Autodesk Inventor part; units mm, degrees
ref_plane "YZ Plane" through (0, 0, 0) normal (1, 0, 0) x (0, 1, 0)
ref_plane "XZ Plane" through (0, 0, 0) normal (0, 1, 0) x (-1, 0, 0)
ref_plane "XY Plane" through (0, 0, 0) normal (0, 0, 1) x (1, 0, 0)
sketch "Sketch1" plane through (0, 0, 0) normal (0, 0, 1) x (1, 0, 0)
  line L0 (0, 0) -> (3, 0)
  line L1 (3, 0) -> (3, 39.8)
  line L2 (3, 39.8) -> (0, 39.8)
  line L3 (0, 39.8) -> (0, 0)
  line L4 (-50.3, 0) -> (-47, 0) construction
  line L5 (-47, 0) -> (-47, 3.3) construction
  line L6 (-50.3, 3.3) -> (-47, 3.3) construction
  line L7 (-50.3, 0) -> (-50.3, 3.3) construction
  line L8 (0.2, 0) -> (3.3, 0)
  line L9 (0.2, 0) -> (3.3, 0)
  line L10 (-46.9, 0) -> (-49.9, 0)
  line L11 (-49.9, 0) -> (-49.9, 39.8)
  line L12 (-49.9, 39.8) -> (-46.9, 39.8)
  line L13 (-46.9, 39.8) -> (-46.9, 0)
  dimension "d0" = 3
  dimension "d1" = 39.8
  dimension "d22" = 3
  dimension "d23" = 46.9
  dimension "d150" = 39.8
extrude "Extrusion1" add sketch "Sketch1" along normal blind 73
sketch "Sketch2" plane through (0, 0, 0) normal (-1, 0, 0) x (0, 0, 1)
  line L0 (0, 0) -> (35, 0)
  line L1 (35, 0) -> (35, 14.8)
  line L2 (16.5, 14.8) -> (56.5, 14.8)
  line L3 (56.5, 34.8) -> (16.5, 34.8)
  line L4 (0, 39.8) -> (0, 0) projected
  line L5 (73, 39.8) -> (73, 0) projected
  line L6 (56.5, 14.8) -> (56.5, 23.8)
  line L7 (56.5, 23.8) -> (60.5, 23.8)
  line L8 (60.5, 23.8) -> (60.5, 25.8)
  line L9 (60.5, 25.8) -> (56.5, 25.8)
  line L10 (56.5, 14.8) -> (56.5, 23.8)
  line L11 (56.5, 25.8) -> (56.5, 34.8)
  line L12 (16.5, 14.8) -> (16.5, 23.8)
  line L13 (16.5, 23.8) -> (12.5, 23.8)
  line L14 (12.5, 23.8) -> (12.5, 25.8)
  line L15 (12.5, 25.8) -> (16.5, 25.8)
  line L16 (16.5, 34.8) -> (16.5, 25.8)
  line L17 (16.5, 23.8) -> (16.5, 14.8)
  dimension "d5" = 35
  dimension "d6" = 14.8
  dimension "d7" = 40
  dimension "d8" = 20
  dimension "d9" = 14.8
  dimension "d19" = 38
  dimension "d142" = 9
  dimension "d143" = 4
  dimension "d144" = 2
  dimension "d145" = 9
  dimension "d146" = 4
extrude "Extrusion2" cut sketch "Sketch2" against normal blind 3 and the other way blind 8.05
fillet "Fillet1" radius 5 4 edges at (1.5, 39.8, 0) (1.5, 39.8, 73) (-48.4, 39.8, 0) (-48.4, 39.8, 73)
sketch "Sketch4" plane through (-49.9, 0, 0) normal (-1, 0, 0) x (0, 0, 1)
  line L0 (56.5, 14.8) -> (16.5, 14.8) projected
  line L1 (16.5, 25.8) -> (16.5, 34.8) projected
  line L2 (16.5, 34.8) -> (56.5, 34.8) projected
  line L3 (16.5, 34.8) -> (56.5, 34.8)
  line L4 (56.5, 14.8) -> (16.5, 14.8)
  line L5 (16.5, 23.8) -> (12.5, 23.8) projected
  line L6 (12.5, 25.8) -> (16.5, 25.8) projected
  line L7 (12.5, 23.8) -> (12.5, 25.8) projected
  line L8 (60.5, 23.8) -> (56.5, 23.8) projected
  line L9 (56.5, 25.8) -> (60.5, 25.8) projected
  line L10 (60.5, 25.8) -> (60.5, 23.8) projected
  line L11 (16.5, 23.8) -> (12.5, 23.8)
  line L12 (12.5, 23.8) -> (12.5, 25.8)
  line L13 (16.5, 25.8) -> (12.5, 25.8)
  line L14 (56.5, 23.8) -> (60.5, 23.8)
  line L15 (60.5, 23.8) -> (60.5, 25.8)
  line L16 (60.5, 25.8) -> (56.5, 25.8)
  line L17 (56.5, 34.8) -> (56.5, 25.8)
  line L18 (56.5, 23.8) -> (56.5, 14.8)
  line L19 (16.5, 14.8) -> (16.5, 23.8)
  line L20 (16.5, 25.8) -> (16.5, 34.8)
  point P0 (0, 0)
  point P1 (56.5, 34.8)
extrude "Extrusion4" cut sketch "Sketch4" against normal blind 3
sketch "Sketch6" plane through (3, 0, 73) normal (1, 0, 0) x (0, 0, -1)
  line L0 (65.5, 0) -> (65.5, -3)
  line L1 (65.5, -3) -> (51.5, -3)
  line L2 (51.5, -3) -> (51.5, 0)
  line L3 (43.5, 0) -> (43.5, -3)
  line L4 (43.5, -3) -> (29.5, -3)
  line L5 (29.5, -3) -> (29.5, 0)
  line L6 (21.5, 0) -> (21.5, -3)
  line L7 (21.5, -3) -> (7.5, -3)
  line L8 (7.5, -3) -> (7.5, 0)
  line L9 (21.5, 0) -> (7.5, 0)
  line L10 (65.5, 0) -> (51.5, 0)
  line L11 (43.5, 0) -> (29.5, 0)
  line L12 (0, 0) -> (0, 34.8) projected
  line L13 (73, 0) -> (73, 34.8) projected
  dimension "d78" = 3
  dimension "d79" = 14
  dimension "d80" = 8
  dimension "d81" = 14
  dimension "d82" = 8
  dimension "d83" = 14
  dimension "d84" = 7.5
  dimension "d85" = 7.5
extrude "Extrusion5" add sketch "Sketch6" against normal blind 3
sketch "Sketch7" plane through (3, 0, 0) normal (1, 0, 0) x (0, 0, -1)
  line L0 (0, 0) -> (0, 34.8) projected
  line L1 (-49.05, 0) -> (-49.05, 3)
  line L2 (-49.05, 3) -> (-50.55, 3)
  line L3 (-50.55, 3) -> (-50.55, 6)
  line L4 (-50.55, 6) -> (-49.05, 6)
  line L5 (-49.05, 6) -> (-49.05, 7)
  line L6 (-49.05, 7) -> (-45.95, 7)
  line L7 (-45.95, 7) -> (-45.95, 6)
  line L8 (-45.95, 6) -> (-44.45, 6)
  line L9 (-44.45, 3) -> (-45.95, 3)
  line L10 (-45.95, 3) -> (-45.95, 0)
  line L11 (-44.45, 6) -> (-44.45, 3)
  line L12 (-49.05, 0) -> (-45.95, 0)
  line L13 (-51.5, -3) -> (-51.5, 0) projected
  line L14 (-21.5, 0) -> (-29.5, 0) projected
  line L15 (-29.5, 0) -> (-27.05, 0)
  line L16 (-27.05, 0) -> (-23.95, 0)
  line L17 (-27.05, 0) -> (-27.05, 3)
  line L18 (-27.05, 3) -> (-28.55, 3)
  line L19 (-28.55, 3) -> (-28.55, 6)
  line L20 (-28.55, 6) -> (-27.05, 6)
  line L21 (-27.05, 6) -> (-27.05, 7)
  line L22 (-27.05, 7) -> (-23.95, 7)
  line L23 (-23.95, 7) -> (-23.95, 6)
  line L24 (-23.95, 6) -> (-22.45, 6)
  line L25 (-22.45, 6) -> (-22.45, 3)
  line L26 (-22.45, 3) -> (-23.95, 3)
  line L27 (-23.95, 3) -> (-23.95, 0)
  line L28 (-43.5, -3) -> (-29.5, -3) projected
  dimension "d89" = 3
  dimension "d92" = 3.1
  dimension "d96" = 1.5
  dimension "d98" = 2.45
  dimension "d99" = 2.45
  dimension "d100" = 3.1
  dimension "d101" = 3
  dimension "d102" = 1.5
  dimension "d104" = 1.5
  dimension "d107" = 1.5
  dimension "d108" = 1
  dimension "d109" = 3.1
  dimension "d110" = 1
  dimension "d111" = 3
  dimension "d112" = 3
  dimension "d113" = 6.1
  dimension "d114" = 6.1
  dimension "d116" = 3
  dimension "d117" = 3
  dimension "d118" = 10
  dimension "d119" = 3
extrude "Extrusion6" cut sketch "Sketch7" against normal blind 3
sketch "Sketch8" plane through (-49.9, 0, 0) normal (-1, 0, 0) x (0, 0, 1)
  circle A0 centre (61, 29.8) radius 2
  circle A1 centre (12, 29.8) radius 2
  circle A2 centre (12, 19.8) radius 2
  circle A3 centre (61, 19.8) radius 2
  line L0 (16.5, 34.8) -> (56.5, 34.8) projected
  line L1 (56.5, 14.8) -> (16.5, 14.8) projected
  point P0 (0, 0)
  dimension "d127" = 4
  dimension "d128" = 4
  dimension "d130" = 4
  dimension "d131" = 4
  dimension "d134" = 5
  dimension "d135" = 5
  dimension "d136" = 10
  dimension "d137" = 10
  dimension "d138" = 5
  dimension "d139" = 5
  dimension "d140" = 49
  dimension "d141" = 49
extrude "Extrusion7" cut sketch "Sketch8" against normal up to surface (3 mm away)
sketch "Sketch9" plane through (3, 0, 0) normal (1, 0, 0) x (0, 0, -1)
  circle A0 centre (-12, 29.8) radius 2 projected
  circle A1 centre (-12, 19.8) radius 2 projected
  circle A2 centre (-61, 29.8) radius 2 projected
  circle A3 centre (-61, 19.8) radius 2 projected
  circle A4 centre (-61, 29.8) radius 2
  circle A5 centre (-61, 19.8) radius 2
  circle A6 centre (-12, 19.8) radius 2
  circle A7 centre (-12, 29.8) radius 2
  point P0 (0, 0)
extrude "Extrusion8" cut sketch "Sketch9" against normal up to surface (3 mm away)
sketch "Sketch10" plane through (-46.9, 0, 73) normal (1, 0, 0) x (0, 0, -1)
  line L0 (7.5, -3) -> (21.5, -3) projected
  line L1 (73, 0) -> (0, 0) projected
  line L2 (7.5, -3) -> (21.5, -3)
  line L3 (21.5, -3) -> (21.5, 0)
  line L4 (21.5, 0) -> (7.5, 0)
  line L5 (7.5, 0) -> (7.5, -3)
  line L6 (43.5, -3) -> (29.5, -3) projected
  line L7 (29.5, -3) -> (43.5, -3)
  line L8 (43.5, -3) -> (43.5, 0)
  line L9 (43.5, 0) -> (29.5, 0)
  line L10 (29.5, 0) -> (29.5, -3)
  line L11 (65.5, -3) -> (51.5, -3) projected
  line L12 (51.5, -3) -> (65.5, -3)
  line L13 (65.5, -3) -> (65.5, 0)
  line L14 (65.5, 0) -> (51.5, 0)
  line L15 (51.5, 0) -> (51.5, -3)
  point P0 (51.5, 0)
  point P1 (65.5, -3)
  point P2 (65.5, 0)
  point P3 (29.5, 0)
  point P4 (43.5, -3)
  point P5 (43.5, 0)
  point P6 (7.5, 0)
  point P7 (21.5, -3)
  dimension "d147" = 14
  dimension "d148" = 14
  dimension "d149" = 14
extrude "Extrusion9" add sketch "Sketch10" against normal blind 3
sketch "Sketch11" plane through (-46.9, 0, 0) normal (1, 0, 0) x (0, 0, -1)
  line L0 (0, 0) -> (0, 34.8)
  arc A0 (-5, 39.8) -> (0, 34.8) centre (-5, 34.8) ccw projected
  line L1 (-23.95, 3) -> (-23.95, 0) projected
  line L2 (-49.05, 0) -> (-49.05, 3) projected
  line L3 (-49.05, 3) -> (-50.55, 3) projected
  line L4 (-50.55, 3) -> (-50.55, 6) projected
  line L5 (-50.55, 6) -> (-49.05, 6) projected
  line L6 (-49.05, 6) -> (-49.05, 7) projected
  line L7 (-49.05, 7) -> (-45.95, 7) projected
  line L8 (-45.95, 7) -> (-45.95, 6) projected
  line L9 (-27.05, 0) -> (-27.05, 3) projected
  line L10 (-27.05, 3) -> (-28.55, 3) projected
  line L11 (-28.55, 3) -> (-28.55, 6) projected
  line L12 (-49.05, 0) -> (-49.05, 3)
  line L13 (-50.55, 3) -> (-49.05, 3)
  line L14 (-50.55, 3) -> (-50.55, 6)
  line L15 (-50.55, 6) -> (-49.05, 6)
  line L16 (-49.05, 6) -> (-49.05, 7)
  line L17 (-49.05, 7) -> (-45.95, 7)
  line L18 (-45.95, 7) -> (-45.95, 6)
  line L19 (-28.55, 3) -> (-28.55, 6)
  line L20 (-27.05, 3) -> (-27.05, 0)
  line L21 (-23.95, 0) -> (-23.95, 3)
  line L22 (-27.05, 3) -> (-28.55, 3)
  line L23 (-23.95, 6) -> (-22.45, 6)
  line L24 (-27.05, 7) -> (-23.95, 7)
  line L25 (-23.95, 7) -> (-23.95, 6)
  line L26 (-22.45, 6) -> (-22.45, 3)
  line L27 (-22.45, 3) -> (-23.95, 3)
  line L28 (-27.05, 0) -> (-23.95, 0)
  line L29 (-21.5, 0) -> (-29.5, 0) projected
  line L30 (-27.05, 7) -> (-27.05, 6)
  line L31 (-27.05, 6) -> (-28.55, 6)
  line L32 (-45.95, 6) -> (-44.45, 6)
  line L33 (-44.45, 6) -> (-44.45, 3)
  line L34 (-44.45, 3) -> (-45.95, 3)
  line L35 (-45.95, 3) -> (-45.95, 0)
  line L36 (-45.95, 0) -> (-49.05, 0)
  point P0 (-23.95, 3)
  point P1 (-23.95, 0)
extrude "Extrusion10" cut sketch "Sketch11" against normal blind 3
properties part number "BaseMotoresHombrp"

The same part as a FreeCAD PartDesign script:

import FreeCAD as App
import Part
import Sketcher
Q = App.Units.Quantity


def edges_at(feature, points):
    """Names of the edges that pass closest to the given points."""
    edges = feature.Shape.Edges
    near = lambda p: min(range(len(edges)), key=lambda i: edges[i].distToShape(Part.Vertex(*p))[0])
    return sorted({f"Edge{near(p) + 1}" for p in points})

doc = App.newDocument("Part")
body = doc.addObject("PartDesign::Body", "Body")
body.AllowCompound = True

# Sketch on XY plane
sketch1 = body.newObject("Sketcher::SketchObject", "Sketch")
sketch1.AttachmentSupport = (doc.getObject("XY_Plane"), [""])
sketch1.MapMode = "FlatFace"
sketch1.addGeometry([
    Part.LineSegment(App.Vector(0, 39.8, 0), App.Vector(0, 0, 0)),  # 0
    Part.LineSegment(App.Vector(0, 0, 0), App.Vector(3, 0, 0)),  # 1
    Part.LineSegment(App.Vector(3, 0, 0), App.Vector(3, 39.8, 0)),  # 2
    Part.LineSegment(App.Vector(3, 39.8, 0), App.Vector(0, 39.8, 0)),  # 3
    Part.LineSegment(App.Vector(-49.9, 0, 0), App.Vector(-46.9, 0, 0)),  # 4
    Part.LineSegment(App.Vector(-46.9, 0, 0), App.Vector(-46.9, 39.8, 0)),  # 5
    Part.LineSegment(App.Vector(-46.9, 39.8, 0), App.Vector(-49.9, 39.8, 0)),  # 6
    Part.LineSegment(App.Vector(-49.9, 39.8, 0), App.Vector(-49.9, 0, 0)),  # 7
], False)
sketch1.addConstraint([
    Sketcher.Constraint("Coincident", 0, 2, 1, 1),
    Sketcher.Constraint("Coincident", 1, 2, 2, 1),
    Sketcher.Constraint("Coincident", 2, 2, 3, 1),
    Sketcher.Constraint("Coincident", 3, 2, 0, 1),
    Sketcher.Constraint("Coincident", 4, 2, 5, 1),
    Sketcher.Constraint("Coincident", 5, 2, 6, 1),
    Sketcher.Constraint("Coincident", 6, 2, 7, 1),
    Sketcher.Constraint("Coincident", 7, 2, 4, 1),
    Sketcher.Constraint("Vertical", 0),
    Sketcher.Constraint("Horizontal", 1),
    Sketcher.Constraint("Vertical", 2),
    Sketcher.Constraint("Horizontal", 3),
    Sketcher.Constraint("Horizontal", 4),
    Sketcher.Constraint("Vertical", 5),
    Sketcher.Constraint("Horizontal", 6),
    Sketcher.Constraint("Vertical", 7),
    Sketcher.Constraint("Coincident", 0, 2, -1, 1),
    Sketcher.Constraint("PointOnObject", 4, 2, -1),
    Sketcher.Constraint("Horizontal", 3, 2, 5, 2),
    Sketcher.Constraint("Equal", 3, 4),
    Sketcher.Constraint("DistanceX", 1, 1, 1, 2, Q("3 mm")),
    Sketcher.Constraint("DistanceY", 0, 2, 0, 1, Q("39.8 mm")),
    Sketcher.Constraint("DistanceX", 4, 2, -1, 1, Q("46.9 mm")),
])
pad1 = body.newObject("PartDesign::Pad", "Pad")
pad1.Profile = sketch1
pad1.Length = 73

# Sketch on YZ plane
sketch2 = body.newObject("Sketcher::SketchObject", "Sketch001")
sketch2.AttachmentSupport = (doc.getObject("YZ_Plane"), [""])
sketch2.MapMode = "FlatFace"
sketch2.addGeometry([
    Part.LineSegment(App.Vector(23.8, 16.5, 0), App.Vector(14.8, 16.5, 0)),  # 0
    Part.LineSegment(App.Vector(14.8, 16.5, 0), App.Vector(14.8, 56.5, 0)),  # 1
    Part.LineSegment(App.Vector(14.8, 56.5, 0), App.Vector(23.8, 56.5, 0)),  # 2
    Part.LineSegment(App.Vector(23.8, 56.5, 0), App.Vector(23.8, 60.5, 0)),  # 3
    Part.LineSegment(App.Vector(23.8, 60.5, 0), App.Vector(25.8, 60.5, 0)),  # 4
    Part.LineSegment(App.Vector(25.8, 60.5, 0), App.Vector(25.8, 56.5, 0)),  # 5
    Part.LineSegment(App.Vector(25.8, 56.5, 0), App.Vector(34.8, 56.5, 0)),  # 6
    Part.LineSegment(App.Vector(34.8, 56.5, 0), App.Vector(34.8, 16.5, 0)),  # 7
    Part.LineSegment(App.Vector(34.8, 16.5, 0), App.Vector(25.8, 16.5, 0)),  # 8
    Part.LineSegment(App.Vector(25.8, 16.5, 0), App.Vector(25.8, 12.5, 0)),  # 9
    Part.LineSegment(App.Vector(25.8, 12.5, 0), App.Vector(23.8, 12.5, 0)),  # 10
    Part.LineSegment(App.Vector(23.8, 12.5, 0), App.Vector(23.8, 16.5, 0)),  # 11
], False)
sketch2.addConstraint([
    Sketcher.Constraint("Coincident", 0, 2, 1, 1),
    Sketcher.Constraint("Coincident", 1, 2, 2, 1),
    Sketcher.Constraint("Coincident", 2, 2, 3, 1),
    Sketcher.Constraint("Coincident", 3, 2, 4, 1),
    Sketcher.Constraint("Coincident", 4, 2, 5, 1),
    Sketcher.Constraint("Coincident", 5, 2, 6, 1),
    Sketcher.Constraint("Coincident", 6, 2, 7, 1),
    Sketcher.Constraint("Coincident", 7, 2, 8, 1),
    Sketcher.Constraint("Coincident", 8, 2, 9, 1),
    Sketcher.Constraint("Coincident", 9, 2, 10, 1),
    Sketcher.Constraint("Coincident", 10, 2, 11, 1),
    Sketcher.Constraint("Coincident", 11, 2, 0, 1),
    Sketcher.Constraint("Horizontal", 0),
    Sketcher.Constraint("Vertical", 1),
    Sketcher.Constraint("Horizontal", 2),
    Sketcher.Constraint("Vertical", 3),
    Sketcher.Constraint("Horizontal", 4),
    Sketcher.Constraint("Vertical", 5),
    Sketcher.Constraint("Horizontal", 6),
    Sketcher.Constraint("Vertical", 7),
    Sketcher.Constraint("Horizontal", 8),
    Sketcher.Constraint("Vertical", 9),
    Sketcher.Constraint("Horizontal", 10),
    Sketcher.Constraint("Vertical", 11),
    Sketcher.Constraint("Horizontal", 2, 2, 5, 2),
    Sketcher.Constraint("Horizontal", 0, 2, 7, 2),
    Sketcher.Constraint("Vertical", 5, 2, 8, 2),
    Sketcher.Constraint("Vertical", 3, 2, 10, 2),
    Sketcher.Constraint("Equal", 2, 6),
    Sketcher.Constraint("Equal", 5, 9),
    Sketcher.Constraint("DistanceX", 0, 2, 0, 1, Q("9 mm")),
    Sketcher.Constraint("DistanceX", 4, 1, 4, 2, Q("2 mm")),
    Sketcher.Constraint("DistanceY", 1, 1, 1, 2, Q("40 mm")),
    Sketcher.Constraint("DistanceY", 3, 1, 3, 2, Q("4 mm")),
    Sketcher.Constraint("DistanceX", -1, 1, 0, 2, Q("14.8 mm")),
    Sketcher.Constraint("DistanceY", -1, 1, 0, 2, Q("16.5 mm")),
])
pocket1 = body.newObject("PartDesign::Pocket", "Pocket")
pocket1.Profile = sketch2
pocket1.Type = "TwoLengths"
pocket1.Length = 3
pocket1.Length2 = 8.05
pocket1.Reversed = True
doc.recompute()

fillet = body.newObject("PartDesign::Fillet", "Fillet")
fillet.Base = (pocket1, edges_at(pocket1, [
    (1.5, 39.8, 0),
    (1.5, 39.8, 73),
    (-48.4, 39.8, 0),
    (-48.4, 39.8, 73),
]))
fillet.Radius = 5

# Sketch on YZ plane
sketch3 = body.newObject("Sketcher::SketchObject", "Sketch002")
sketch3.AttachmentSupport = (doc.getObject("YZ_Plane"), [""])
sketch3.MapMode = "FlatFace"
sketch3.AttachmentOffset = App.Placement(App.Vector(0, 0, -49.9), App.Rotation())
sketch3.addGeometry([
    Part.LineSegment(App.Vector(14.8, 16.5, 0), App.Vector(14.8, 56.5, 0)),  # 0
    Part.LineSegment(App.Vector(14.8, 56.5, 0), App.Vector(23.8, 56.5, 0)),  # 1
    Part.LineSegment(App.Vector(23.8, 56.5, 0), App.Vector(23.8, 60.5, 0)),  # 2
    Part.LineSegment(App.Vector(23.8, 60.5, 0), App.Vector(25.8, 60.5, 0)),  # 3
    Part.LineSegment(App.Vector(25.8, 60.5, 0), App.Vector(25.8, 56.5, 0)),  # 4
    Part.LineSegment(App.Vector(25.8, 56.5, 0), App.Vector(34.8, 56.5, 0)),  # 5
    Part.LineSegment(App.Vector(34.8, 56.5, 0), App.Vector(34.8, 16.5, 0)),  # 6
    Part.LineSegment(App.Vector(34.8, 16.5, 0), App.Vector(25.8, 16.5, 0)),  # 7
    Part.LineSegment(App.Vector(25.8, 16.5, 0), App.Vector(25.8, 12.5, 0)),  # 8
    Part.LineSegment(App.Vector(25.8, 12.5, 0), App.Vector(23.8, 12.5, 0)),  # 9
    Part.LineSegment(App.Vector(23.8, 12.5, 0), App.Vector(23.8, 16.5, 0)),  # 10
    Part.LineSegment(App.Vector(23.8, 16.5, 0), App.Vector(14.8, 16.5, 0)),  # 11
], False)
sketch3.addConstraint([
    Sketcher.Constraint("Coincident", 0, 2, 1, 1),
    Sketcher.Constraint("Coincident", 1, 2, 2, 1),
    Sketcher.Constraint("Coincident", 2, 2, 3, 1),
    Sketcher.Constraint("Coincident", 3, 2, 4, 1),
    Sketcher.Constraint("Coincident", 4, 2, 5, 1),
    Sketcher.Constraint("Coincident", 5, 2, 6, 1),
    Sketcher.Constraint("Coincident", 6, 2, 7, 1),
    Sketcher.Constraint("Coincident", 7, 2, 8, 1),
    Sketcher.Constraint("Coincident", 8, 2, 9, 1),
    Sketcher.Constraint("Coincident", 9, 2, 10, 1),
    Sketcher.Constraint("Coincident", 10, 2, 11, 1),
    Sketcher.Constraint("Coincident", 11, 2, 0, 1),
    Sketcher.Constraint("Vertical", 0),
    Sketcher.Constraint("Horizontal", 1),
    Sketcher.Constraint("Vertical", 2),
    Sketcher.Constraint("Horizontal", 3),
    Sketcher.Constraint("Vertical", 4),
    Sketcher.Constraint("Horizontal", 5),
    Sketcher.Constraint("Vertical", 6),
    Sketcher.Constraint("Horizontal", 7),
    Sketcher.Constraint("Vertical", 8),
    Sketcher.Constraint("Horizontal", 9),
    Sketcher.Constraint("Vertical", 10),
    Sketcher.Constraint("Horizontal", 11),
    Sketcher.Constraint("Horizontal", 1, 2, 4, 2),
    Sketcher.Constraint("Horizontal", 7, 2, 10, 2),
    Sketcher.Constraint("Vertical", 4, 2, 7, 2),
    Sketcher.Constraint("Vertical", 2, 2, 9, 2),
    Sketcher.Constraint("Equal", 1, 5),
    Sketcher.Constraint("Equal", 4, 8),
    Sketcher.Constraint("DistanceX", 1, 1, 1, 2, Q("9 mm")),
    Sketcher.Constraint("DistanceX", 3, 1, 3, 2, Q("2 mm")),
    Sketcher.Constraint("DistanceY", 0, 1, 0, 2, Q("40 mm")),
    Sketcher.Constraint("DistanceY", 2, 1, 2, 2, Q("4 mm")),
    Sketcher.Constraint("DistanceX", -1, 1, 0, 2, Q("14.8 mm")),
    Sketcher.Constraint("DistanceY", -1, 1, 0, 2, Q("56.5 mm")),
])
pocket2 = body.newObject("PartDesign::Pocket", "Pocket001")
pocket2.Profile = sketch3
pocket2.Length = 3
pocket2.Reversed = True

# Sketch on YZ plane
sketch4 = body.newObject("Sketcher::SketchObject", "Sketch003")
sketch4.AttachmentSupport = (doc.getObject("YZ_Plane"), [""])
sketch4.MapMode = "FlatFace"
sketch4.AttachmentOffset = App.Placement(App.Vector(0, 0, 3), App.Rotation())
sketch4.addGeometry([
    Part.LineSegment(App.Vector(-3, 7.5, 0), App.Vector(0, 7.5, 0)),  # 0
    Part.LineSegment(App.Vector(0, 7.5, 0), App.Vector(0, 21.5, 0)),  # 1
    Part.LineSegment(App.Vector(0, 21.5, 0), App.Vector(-3, 21.5, 0)),  # 2
    Part.LineSegment(App.Vector(-3, 21.5, 0), App.Vector(-3, 7.5, 0)),  # 3
    Part.LineSegment(App.Vector(-3, 29.5, 0), App.Vector(0, 29.5, 0)),  # 4
    Part.LineSegment(App.Vector(0, 29.5, 0), App.Vector(0, 43.5, 0)),  # 5
    Part.LineSegment(App.Vector(0, 43.5, 0), App.Vector(-3, 43.5, 0)),  # 6
    Part.LineSegment(App.Vector(-3, 43.5, 0), App.Vector(-3, 29.5, 0)),  # 7
    Part.LineSegment(App.Vector(-3, 51.5, 0), App.Vector(0, 51.5, 0)),  # 8
    Part.LineSegment(App.Vector(0, 51.5, 0), App.Vector(0, 65.5, 0)),  # 9
    Part.LineSegment(App.Vector(0, 65.5, 0), App.Vector(-3, 65.5, 0)),  # 10
    Part.LineSegment(App.Vector(-3, 65.5, 0), App.Vector(-3, 51.5, 0)),  # 11
], False)
sketch4.addConstraint([
    Sketcher.Constraint("Coincident", 0, 2, 1, 1),
    Sketcher.Constraint("Coincident", 1, 2, 2, 1),
    Sketcher.Constraint("Coincident", 2, 2, 3, 1),
    Sketcher.Constraint("Coincident", 3, 2, 0, 1),
    Sketcher.Constraint("Coincident", 4, 2, 5, 1),
    Sketcher.Constraint("Coincident", 5, 2, 6, 1),
    Sketcher.Constraint("Coincident", 6, 2, 7, 1),
    Sketcher.Constraint("Coincident", 7, 2, 4, 1),
    Sketcher.Constraint("Coincident", 8, 2, 9, 1),
    Sketcher.Constraint("Coincident", 9, 2, 10, 1),
    Sketcher.Constraint("Coincident", 10, 2, 11, 1),
    Sketcher.Constraint("Coincident", 11, 2, 8, 1),
    Sketcher.Constraint("Horizontal", 0),
    Sketcher.Constraint("Vertical", 1),
    Sketcher.Constraint("Horizontal", 2),
    Sketcher.Constraint("Vertical", 3),
    Sketcher.Constraint("Horizontal", 4),
    Sketcher.Constraint("Vertical", 5),
    Sketcher.Constraint("Horizontal", 6),
    Sketcher.Constraint("Vertical", 7),
    Sketcher.Constraint("Horizontal", 8),
    Sketcher.Constraint("Vertical", 9),
    Sketcher.Constraint("Horizontal", 10),
    Sketcher.Constraint("Vertical", 11),
    Sketcher.Constraint("PointOnObject", 0, 2, -2),
    Sketcher.Constraint("PointOnObject", 4, 2, -2),
    Sketcher.Constraint("PointOnObject", 8, 2, -2),
    Sketcher.Constraint("Vertical", 3, 2, 6, 2),
    Sketcher.Constraint("Vertical", 7, 2, 10, 2),
    Sketcher.Constraint("Equal", 3, 5),
    Sketcher.Constraint("Equal", 7, 9),
    Sketcher.Constraint("DistanceX", 0, 1, 0, 2, Q("3 mm")),
    Sketcher.Constraint("DistanceY", 1, 1, 1, 2, Q("14 mm")),
    Sketcher.Constraint("DistanceY", 1, 2, 4, 2, Q("8 mm")),
    Sketcher.Constraint("DistanceY", 5, 2, 8, 2, Q("8 mm")),
    Sketcher.Constraint("DistanceY", -1, 1, 0, 2, Q("7.5 mm")),
])
pad2 = body.newObject("PartDesign::Pad", "Pad001")
pad2.Profile = sketch4
pad2.Length = 3
pad2.Reversed = True

# Sketch on YZ plane
sketch5 = body.newObject("Sketcher::SketchObject", "Sketch004")
sketch5.AttachmentSupport = (doc.getObject("YZ_Plane"), [""])
sketch5.MapMode = "FlatFace"
sketch5.AttachmentOffset = App.Placement(App.Vector(0, 0, 3), App.Rotation())
sketch5.addGeometry([
    Part.LineSegment(App.Vector(3, 49, 0), App.Vector(0, 49, 0)),  # 0
    Part.LineSegment(App.Vector(0, 49, 0), App.Vector(0, 46, 0)),  # 1
    Part.LineSegment(App.Vector(0, 46, 0), App.Vector(3, 46, 0)),  # 2
    Part.LineSegment(App.Vector(3, 46, 0), App.Vector(3, 44.5, 0)),  # 3
    Part.LineSegment(App.Vector(3, 44.5, 0), App.Vector(6, 44.5, 0)),  # 4
    Part.LineSegment(App.Vector(6, 44.5, 0), App.Vector(6, 46, 0)),  # 5
    Part.LineSegment(App.Vector(6, 46, 0), App.Vector(7, 46, 0)),  # 6
    Part.LineSegment(App.Vector(7, 46, 0), App.Vector(7, 49, 0)),  # 7
    Part.LineSegment(App.Vector(7, 49, 0), App.Vector(6, 49, 0)),  # 8
    Part.LineSegment(App.Vector(6, 49, 0), App.Vector(6, 50.5, 0)),  # 9
    Part.LineSegment(App.Vector(6, 50.5, 0), App.Vector(3, 50.5, 0)),  # 10
    Part.LineSegment(App.Vector(3, 50.5, 0), App.Vector(3, 49, 0)),  # 11
    Part.LineSegment(App.Vector(0, 27.1, 0), App.Vector(0, 23.9, 0)),  # 12
    Part.LineSegment(App.Vector(0, 23.9, 0), App.Vector(3, 23.9, 0)),  # 13
    Part.LineSegment(App.Vector(3, 23.9, 0), App.Vector(3, 22.4, 0)),  # 14
    Part.LineSegment(App.Vector(3, 22.4, 0), App.Vector(6, 22.4, 0)),  # 15
    Part.LineSegment(App.Vector(6, 22.4, 0), App.Vector(6, 23.9, 0)),  # 16
    Part.LineSegment(App.Vector(6, 23.9, 0), App.Vector(7, 23.9, 0)),  # 17
    Part.LineSegment(App.Vector(7, 23.9, 0), App.Vector(7, 27.1, 0)),  # 18
    Part.LineSegment(App.Vector(7, 27.1, 0), App.Vector(6, 27.1, 0)),  # 19
    Part.LineSegment(App.Vector(6, 27.1, 0), App.Vector(6, 28.6, 0)),  # 20
    Part.LineSegment(App.Vector(6, 28.6, 0), App.Vector(3, 28.6, 0)),  # 21
    Part.LineSegment(App.Vector(3, 28.6, 0), App.Vector(3, 27.1, 0)),  # 22
    Part.LineSegment(App.Vector(3, 27.1, 0), App.Vector(0, 27.1, 0)),  # 23
], False)
sketch5.addConstraint([
    Sketcher.Constraint("Coincident", 0, 2, 1, 1),
    Sketcher.Constraint("Coincident", 1, 2, 2, 1),
    Sketcher.Constraint("Coincident", 2, 2, 3, 1),
    Sketcher.Constraint("Coincident", 3, 2, 4, 1),
    Sketcher.Constraint("Coincident", 4, 2, 5, 1),
    Sketcher.Constraint("Coincident", 5, 2, 6, 1),
    Sketcher.Constraint("Coincident", 6, 2, 7, 1),
    Sketcher.Constraint("Coincident", 7, 2, 8, 1),
    Sketcher.Constraint("Coincident", 8, 2, 9, 1),
    Sketcher.Constraint("Coincident", 9, 2, 10, 1),
    Sketcher.Constraint("Coincident", 10, 2, 11, 1),
    Sketcher.Constraint("Coincident", 11, 2, 0, 1),
    Sketcher.Constraint("Coincident", 12, 2, 13, 1),
    Sketcher.Constraint("Coincident", 13, 2, 14, 1),
    Sketcher.Constraint("Coincident", 14, 2, 15, 1),
    Sketcher.Constraint("Coincident", 15, 2, 16, 1),
    Sketcher.Constraint("Coincident", 16, 2, 17, 1),
    Sketcher.Constraint("Coincident", 17, 2, 18, 1),
    Sketcher.Constraint("Coincident", 18, 2, 19, 1),
    Sketcher.Constraint("Coincident", 19, 2, 20, 1),
    Sketcher.Constraint("Coincident", 20, 2, 21, 1),
    Sketcher.Constraint("Coincident", 21, 2, 22, 1),
    Sketcher.Constraint("Coincident", 22, 2, 23, 1),
    Sketcher.Constraint("Coincident", 23, 2, 12, 1),
    Sketcher.Constraint("Horizontal", 0),
    Sketcher.Constraint("Vertical", 1),
    Sketcher.Constraint("Horizontal", 2),
    Sketcher.Constraint("Vertical", 3),
    Sketcher.Constraint("Horizontal", 4),
    Sketcher.Constraint("Vertical", 5),
    Sketcher.Constraint("Horizontal", 6),
    Sketcher.Constraint("Vertical", 7),
    Sketcher.Constraint("Horizontal", 8),
    Sketcher.Constraint("Vertical", 9),
    Sketcher.Constraint("Horizontal", 10),
    Sketcher.Constraint("Vertical", 11),
    Sketcher.Constraint("Vertical", 12),
    Sketcher.Constraint("Horizontal", 13),
    Sketcher.Constraint("Vertical", 14),
    Sketcher.Constraint("Horizontal", 15),
    Sketcher.Constraint("Vertical", 16),
    Sketcher.Constraint("Horizontal", 17),
    Sketcher.Constraint("Vertical", 18),
    Sketcher.Constraint("Horizontal", 19),
    Sketcher.Constraint("Vertical", 20),
    Sketcher.Constraint("Horizontal", 21),
    Sketcher.Constraint("Vertical", 22),
    Sketcher.Constraint("Horizontal", 23),
    Sketcher.Constraint("PointOnObject", 0, 2, -2),
    Sketcher.Constraint("PointOnObject", 12, 2, -2),
    Sketcher.Constraint("Horizontal", 2, 2, 5, 2),
    Sketcher.Constraint("Horizontal", 0, 2, 7, 2),
    Sketcher.Constraint("Horizontal", 13, 2, 16, 2),
    Sketcher.Constraint("Horizontal", 19, 2, 22, 2),
    Sketcher.Constraint("Vertical", 5, 2, 8, 2),
    Sketcher.Constraint("Vertical", 3, 2, 10, 2),
    Sketcher.Constraint("Vertical", 11, 2, 13, 2),
    Sketcher.Constraint("Vertical", 9, 2, 15, 2),
    Sketcher.Constraint("Vertical", 7, 2, 17, 2),
    Sketcher.Constraint("Vertical", 16, 2, 19, 2),
    Sketcher.Constraint("Vertical", 14, 2, 21, 2),
    Sketcher.Constraint("Equal", 2, 4),
    Sketcher.Constraint("Equal", 5, 9),
    Sketcher.Constraint("Equal", 7, 12),
    Sketcher.Constraint("Equal", 11, 14),
    Sketcher.Constraint("Equal", 16, 20),
    Sketcher.Constraint("DistanceX", 0, 2, 0, 1, Q("3 mm")),
    Sketcher.Constraint("DistanceX", 6, 1, 6, 2, Q("1 mm")),
    Sketcher.Constraint("DistanceY", 1, 2, 1, 1, Q("3.1 mm")),
    Sketcher.Constraint("DistanceY", 3, 2, 3, 1, Q("1.5 mm")),
    Sketcher.Constraint("DistanceY", 12, 2, 1, 2, Q("22 mm")),
    Sketcher.Constraint("DistanceY", -1, 1, 0, 2, Q("49.05 mm")),
])
pocket3 = body.newObject("PartDesign::Pocket", "Pocket002")
pocket3.Profile = sketch5
pocket3.Length = 3

# Sketch on YZ plane
sketch6 = body.newObject("Sketcher::SketchObject", "Sketch005")
sketch6.AttachmentSupport = (doc.getObject("YZ_Plane"), [""])
sketch6.MapMode = "FlatFace"
sketch6.AttachmentOffset = App.Placement(App.Vector(0, 0, -49.9), App.Rotation())
sketch6.addGeometry([
    Part.Circle(App.Vector(29.8, 61, 0), App.Vector(0, 0, 1), 2),
    Part.Circle(App.Vector(29.8, 12, 0), App.Vector(0, 0, 1), 2),
    Part.Circle(App.Vector(19.8, 12, 0), App.Vector(0, 0, 1), 2),
    Part.Circle(App.Vector(19.8, 61, 0), App.Vector(0, 0, 1), 2),
], False)
sketch6.addConstraint([
    Sketcher.Constraint("Equal", 0, 1),
    Sketcher.Constraint("Equal", 1, 2),
    Sketcher.Constraint("Equal", 2, 3),
    Sketcher.Constraint("Horizontal", 1, 3, 2, 3),
    Sketcher.Constraint("Horizontal", 0, 3, 3, 3),
    Sketcher.Constraint("Vertical", 0, 3, 1, 3),
    Sketcher.Constraint("Vertical", 2, 3, 3, 3),
    Sketcher.Constraint("Diameter", 0, Q("4 mm")),
    Sketcher.Constraint("DistanceY", 1, 3, 0, 3, Q("49 mm")),
    Sketcher.Constraint("DistanceX", 2, 3, 1, 3, Q("10 mm")),
    Sketcher.Constraint("DistanceY", -1, 1, 0, 3, Q("61 mm")),
    Sketcher.Constraint("DistanceX", -1, 1, 0, 3, Q("29.8 mm")),
])
pocket4 = body.newObject("PartDesign::Pocket", "Pocket003")
pocket4.Profile = sketch6
pocket4.Length = 3
pocket4.Reversed = True

# Sketch on YZ plane
sketch7 = body.newObject("Sketcher::SketchObject", "Sketch006")
sketch7.AttachmentSupport = (doc.getObject("YZ_Plane"), [""])
sketch7.MapMode = "FlatFace"
sketch7.AttachmentOffset = App.Placement(App.Vector(0, 0, 3), App.Rotation())
sketch7.addGeometry([
    Part.Circle(App.Vector(29.8, 12, 0), App.Vector(0, 0, 1), 2),
    Part.Circle(App.Vector(19.8, 12, 0), App.Vector(0, 0, 1), 2),
    Part.Circle(App.Vector(29.8, 61, 0), App.Vector(0, 0, 1), 2),
    Part.Circle(App.Vector(19.8, 61, 0), App.Vector(0, 0, 1), 2),
], False)
sketch7.addConstraint([
    Sketcher.Constraint("Equal", 0, 1),
    Sketcher.Constraint("Equal", 1, 2),
    Sketcher.Constraint("Equal", 2, 3),
    Sketcher.Constraint("Horizontal", 0, 3, 1, 3),
    Sketcher.Constraint("Horizontal", 2, 3, 3, 3),
    Sketcher.Constraint("Vertical", 0, 3, 2, 3),
    Sketcher.Constraint("Vertical", 1, 3, 3, 3),
    Sketcher.Constraint("Diameter", 0, Q("4 mm")),
    Sketcher.Constraint("DistanceY", -1, 1, 0, 3, Q("12 mm")),
    Sketcher.Constraint("DistanceY", -1, 1, 2, 3, Q("61 mm")),
    Sketcher.Constraint("DistanceX", 1, 3, 0, 3, Q("10 mm")),
    Sketcher.Constraint("DistanceX", -1, 1, 0, 3, Q("29.8 mm")),
])
pocket5 = body.newObject("PartDesign::Pocket", "Pocket004")
pocket5.Profile = sketch7
pocket5.Length = 3

# Sketch on YZ plane
sketch8 = body.newObject("Sketcher::SketchObject", "Sketch007")
sketch8.AttachmentSupport = (doc.getObject("YZ_Plane"), [""])
sketch8.MapMode = "FlatFace"
sketch8.AttachmentOffset = App.Placement(App.Vector(0, 0, -46.9), App.Rotation())
sketch8.addGeometry([
    Part.LineSegment(App.Vector(0, 65.5, 0), App.Vector(-3, 65.5, 0)),  # 0
    Part.LineSegment(App.Vector(-3, 65.5, 0), App.Vector(-3, 51.5, 0)),  # 1
    Part.LineSegment(App.Vector(-3, 51.5, 0), App.Vector(0, 51.5, 0)),  # 2
    Part.LineSegment(App.Vector(0, 51.5, 0), App.Vector(0, 65.5, 0)),  # 3
    Part.LineSegment(App.Vector(0, 7.5, 0), App.Vector(0, 21.5, 0)),  # 4
    Part.LineSegment(App.Vector(0, 21.5, 0), App.Vector(-3, 21.5, 0)),  # 5
    Part.LineSegment(App.Vector(-3, 21.5, 0), App.Vector(-3, 7.5, 0)),  # 6
    Part.LineSegment(App.Vector(-3, 7.5, 0), App.Vector(0, 7.5, 0)),  # 7
    Part.LineSegment(App.Vector(0, 29.5, 0), App.Vector(0, 43.5, 0)),  # 8
    Part.LineSegment(App.Vector(0, 43.5, 0), App.Vector(-3, 43.5, 0)),  # 9
    Part.LineSegment(App.Vector(-3, 43.5, 0), App.Vector(-3, 29.5, 0)),  # 10
    Part.LineSegment(App.Vector(-3, 29.5, 0), App.Vector(0, 29.5, 0)),  # 11
], False)
sketch8.addConstraint([
    Sketcher.Constraint("Coincident", 0, 2, 1, 1),
    Sketcher.Constraint("Coincident", 1, 2, 2, 1),
    Sketcher.Constraint("Coincident", 2, 2, 3, 1),
    Sketcher.Constraint("Coincident", 3, 2, 0, 1),
    Sketcher.Constraint("Coincident", 4, 2, 5, 1),
    Sketcher.Constraint("Coincident", 5, 2, 6, 1),
    Sketcher.Constraint("Coincident", 6, 2, 7, 1),
    Sketcher.Constraint("Coincident", 7, 2, 4, 1),
    Sketcher.Constraint("Coincident", 8, 2, 9, 1),
    Sketcher.Constraint("Coincident", 9, 2, 10, 1),
    Sketcher.Constraint("Coincident", 10, 2, 11, 1),
    Sketcher.Constraint("Coincident", 11, 2, 8, 1),
    Sketcher.Constraint("Horizontal", 0),
    Sketcher.Constraint("Vertical", 1),
    Sketcher.Constraint("Horizontal", 2),
    Sketcher.Constraint("Vertical", 3),
    Sketcher.Constraint("Vertical", 4),
    Sketcher.Constraint("Horizontal", 5),
    Sketcher.Constraint("Vertical", 6),
    Sketcher.Constraint("Horizontal", 7),
    Sketcher.Constraint("Vertical", 8),
    Sketcher.Constraint("Horizontal", 9),
    Sketcher.Constraint("Vertical", 10),
    Sketcher.Constraint("Horizontal", 11),
    Sketcher.Constraint("PointOnObject", 2, 2, -2),
    Sketcher.Constraint("PointOnObject", 4, 2, -2),
    Sketcher.Constraint("PointOnObject", 8, 2, -2),
    Sketcher.Constraint("Vertical", 1, 2, 5, 2),
    Sketcher.Constraint("Vertical", 6, 2, 9, 2),
    Sketcher.Constraint("Equal", 3, 4),
    Sketcher.Constraint("Equal", 6, 8),
    Sketcher.Constraint("DistanceY", 1, 2, 1, 1, Q("14 mm")),
    Sketcher.Constraint("DistanceX", 0, 2, 0, 1, Q("3 mm")),
    Sketcher.Constraint("DistanceY", 4, 2, 2, 2, Q("30 mm")),
    Sketcher.Constraint("DistanceY", 8, 2, 2, 2, Q("8 mm")),
    Sketcher.Constraint("DistanceY", -1, 1, 0, 2, Q("65.5 mm")),
])
pad3 = body.newObject("PartDesign::Pad", "Pad002")
pad3.Profile = sketch8
pad3.Length = 3
pad3.Reversed = True

# Sketch on YZ plane
sketch9 = body.newObject("Sketcher::SketchObject", "Sketch008")
sketch9.AttachmentSupport = (doc.getObject("YZ_Plane"), [""])
sketch9.MapMode = "FlatFace"
sketch9.AttachmentOffset = App.Placement(App.Vector(0, 0, -46.9), App.Rotation())
sketch9.addGeometry([
    Part.LineSegment(App.Vector(0, 23.9, 0), App.Vector(3, 23.9, 0)),  # 0
    Part.LineSegment(App.Vector(3, 23.9, 0), App.Vector(3, 22.4, 0)),  # 1
    Part.LineSegment(App.Vector(3, 22.4, 0), App.Vector(6, 22.4, 0)),  # 2
    Part.LineSegment(App.Vector(6, 22.4, 0), App.Vector(6, 23.9, 0)),  # 3
    Part.LineSegment(App.Vector(6, 23.9, 0), App.Vector(7, 23.9, 0)),  # 4
    Part.LineSegment(App.Vector(7, 23.9, 0), App.Vector(7, 27.1, 0)),  # 5
    Part.LineSegment(App.Vector(7, 27.1, 0), App.Vector(6, 27.1, 0)),  # 6
    Part.LineSegment(App.Vector(6, 27.1, 0), App.Vector(6, 28.6, 0)),  # 7
    Part.LineSegment(App.Vector(6, 28.6, 0), App.Vector(3, 28.6, 0)),  # 8
    Part.LineSegment(App.Vector(3, 28.6, 0), App.Vector(3, 27.1, 0)),  # 9
    Part.LineSegment(App.Vector(3, 27.1, 0), App.Vector(0, 27.1, 0)),  # 10
    Part.LineSegment(App.Vector(0, 27.1, 0), App.Vector(0, 23.9, 0)),  # 11
    Part.LineSegment(App.Vector(3, 49, 0), App.Vector(0, 49, 0)),  # 12
    Part.LineSegment(App.Vector(0, 49, 0), App.Vector(0, 46, 0)),  # 13
    Part.LineSegment(App.Vector(0, 46, 0), App.Vector(3, 46, 0)),  # 14
    Part.LineSegment(App.Vector(3, 46, 0), App.Vector(3, 44.5, 0)),  # 15
    Part.LineSegment(App.Vector(3, 44.5, 0), App.Vector(6, 44.5, 0)),  # 16
    Part.LineSegment(App.Vector(6, 44.5, 0), App.Vector(6, 46, 0)),  # 17
    Part.LineSegment(App.Vector(6, 46, 0), App.Vector(7, 46, 0)),  # 18
    Part.LineSegment(App.Vector(7, 46, 0), App.Vector(7, 49, 0)),  # 19
    Part.LineSegment(App.Vector(7, 49, 0), App.Vector(6, 49, 0)),  # 20
    Part.LineSegment(App.Vector(6, 49, 0), App.Vector(6, 50.5, 0)),  # 21
    Part.LineSegment(App.Vector(6, 50.5, 0), App.Vector(3, 50.5, 0)),  # 22
    Part.LineSegment(App.Vector(3, 50.5, 0), App.Vector(3, 49, 0)),  # 23
], False)
sketch9.addConstraint([
    Sketcher.Constraint("Coincident", 0, 2, 1, 1),
    Sketcher.Constraint("Coincident", 1, 2, 2, 1),
    Sketcher.Constraint("Coincident", 2, 2, 3, 1),
    Sketcher.Constraint("Coincident", 3, 2, 4, 1),
    Sketcher.Constraint("Coincident", 4, 2, 5, 1),
    Sketcher.Constraint("Coincident", 5, 2, 6, 1),
    Sketcher.Constraint("Coincident", 6, 2, 7, 1),
    Sketcher.Constraint("Coincident", 7, 2, 8, 1),
    Sketcher.Constraint("Coincident", 8, 2, 9, 1),
    Sketcher.Constraint("Coincident", 9, 2, 10, 1),
    Sketcher.Constraint("Coincident", 10, 2, 11, 1),
    Sketcher.Constraint("Coincident", 11, 2, 0, 1),
    Sketcher.Constraint("Coincident", 12, 2, 13, 1),
    Sketcher.Constraint("Coincident", 13, 2, 14, 1),
    Sketcher.Constraint("Coincident", 14, 2, 15, 1),
    Sketcher.Constraint("Coincident", 15, 2, 16, 1),
    Sketcher.Constraint("Coincident", 16, 2, 17, 1),
    Sketcher.Constraint("Coincident", 17, 2, 18, 1),
    Sketcher.Constraint("Coincident", 18, 2, 19, 1),
    Sketcher.Constraint("Coincident", 19, 2, 20, 1),
    Sketcher.Constraint("Coincident", 20, 2, 21, 1),
    Sketcher.Constraint("Coincident", 21, 2, 22, 1),
    Sketcher.Constraint("Coincident", 22, 2, 23, 1),
    Sketcher.Constraint("Coincident", 23, 2, 12, 1),
    Sketcher.Constraint("Horizontal", 0),
    Sketcher.Constraint("Vertical", 1),
    Sketcher.Constraint("Horizontal", 2),
    Sketcher.Constraint("Vertical", 3),
    Sketcher.Constraint("Horizontal", 4),
    Sketcher.Constraint("Vertical", 5),
    Sketcher.Constraint("Horizontal", 6),
    Sketcher.Constraint("Vertical", 7),
    Sketcher.Constraint("Horizontal", 8),
    Sketcher.Constraint("Vertical", 9),
    Sketcher.Constraint("Horizontal", 10),
    Sketcher.Constraint("Vertical", 11),
    Sketcher.Constraint("Horizontal", 12),
    Sketcher.Constraint("Vertical", 13),
    Sketcher.Constraint("Horizontal", 14),
    Sketcher.Constraint("Vertical", 15),
    Sketcher.Constraint("Horizontal", 16),
    Sketcher.Constraint("Vertical", 17),
    Sketcher.Constraint("Horizontal", 18),
    Sketcher.Constraint("Vertical", 19),
    Sketcher.Constraint("Horizontal", 20),
    Sketcher.Constraint("Vertical", 21),
    Sketcher.Constraint("Horizontal", 22),
    Sketcher.Constraint("Vertical", 23),
    Sketcher.Constraint("PointOnObject", 10, 2, -2),
    Sketcher.Constraint("PointOnObject", 12, 2, -2),
    Sketcher.Constraint("Horizontal", 0, 2, 3, 2),
    Sketcher.Constraint("Horizontal", 6, 2, 9, 2),
    Sketcher.Constraint("Horizontal", 14, 2, 17, 2),
    Sketcher.Constraint("Horizontal", 12, 2, 19, 2),
    Sketcher.Constraint("Vertical", 3, 2, 6, 2),
    Sketcher.Constraint("Vertical", 1, 2, 8, 2),
    Sketcher.Constraint("Vertical", 9, 2, 14, 2),
    Sketcher.Constraint("Vertical", 7, 2, 16, 2),
    Sketcher.Constraint("Vertical", 5, 2, 18, 2),
    Sketcher.Constraint("Vertical", 17, 2, 20, 2),
    Sketcher.Constraint("Vertical", 15, 2, 22, 2),
    Sketcher.Constraint("Equal", 0, 2),
    Sketcher.Constraint("Equal", 3, 7),
    Sketcher.Constraint("Equal", 11, 13),
    Sketcher.Constraint("Equal", 9, 15),
    Sketcher.Constraint("Equal", 17, 21),
    Sketcher.Constraint("DistanceX", 0, 1, 0, 2, Q("3 mm")),
    Sketcher.Constraint("DistanceX", 4, 1, 4, 2, Q("1 mm")),
    Sketcher.Constraint("DistanceY", 1, 2, 1, 1, Q("1.5 mm")),
    Sketcher.Constraint("DistanceY", 5, 1, 5, 2, Q("3.1 mm")),
    Sketcher.Constraint("DistanceY", 10, 2, 12, 2, Q("22 mm")),
    Sketcher.Constraint("DistanceY", -1, 1, 0, 2, Q("23.95 mm")),
])
pocket6 = body.newObject("PartDesign::Pocket", "Pocket005")
pocket6.Profile = sketch9
pocket6.Length = 3

doc.recompute()
